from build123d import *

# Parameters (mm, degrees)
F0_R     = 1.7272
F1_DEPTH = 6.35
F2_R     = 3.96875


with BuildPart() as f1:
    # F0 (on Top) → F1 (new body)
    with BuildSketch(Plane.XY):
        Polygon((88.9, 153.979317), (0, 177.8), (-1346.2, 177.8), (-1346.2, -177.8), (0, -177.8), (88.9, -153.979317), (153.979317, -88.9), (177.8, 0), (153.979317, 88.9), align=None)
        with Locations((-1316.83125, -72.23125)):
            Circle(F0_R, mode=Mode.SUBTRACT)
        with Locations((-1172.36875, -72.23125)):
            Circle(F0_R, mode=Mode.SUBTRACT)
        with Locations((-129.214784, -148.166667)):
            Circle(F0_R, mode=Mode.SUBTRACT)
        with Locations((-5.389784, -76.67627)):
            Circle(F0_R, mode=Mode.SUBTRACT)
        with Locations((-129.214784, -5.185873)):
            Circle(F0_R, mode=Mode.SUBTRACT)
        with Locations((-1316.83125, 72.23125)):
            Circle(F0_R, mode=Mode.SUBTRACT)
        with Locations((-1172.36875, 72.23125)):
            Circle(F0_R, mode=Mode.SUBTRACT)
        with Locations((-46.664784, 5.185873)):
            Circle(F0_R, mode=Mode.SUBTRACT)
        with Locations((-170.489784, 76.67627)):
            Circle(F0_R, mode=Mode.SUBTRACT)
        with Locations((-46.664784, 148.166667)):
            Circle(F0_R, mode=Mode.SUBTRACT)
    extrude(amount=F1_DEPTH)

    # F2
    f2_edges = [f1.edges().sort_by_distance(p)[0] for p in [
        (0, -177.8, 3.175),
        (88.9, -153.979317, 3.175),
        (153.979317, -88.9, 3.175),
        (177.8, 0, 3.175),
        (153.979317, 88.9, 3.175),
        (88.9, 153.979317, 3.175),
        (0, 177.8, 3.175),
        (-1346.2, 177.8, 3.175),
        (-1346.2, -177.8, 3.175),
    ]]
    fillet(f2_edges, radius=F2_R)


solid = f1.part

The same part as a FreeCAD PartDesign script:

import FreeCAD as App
import Part
import Sketcher

V = App.Vector
Q = App.Units.Quantity


def edges_at(feature, points):
    """Names of the edges that pass closest to the given points."""
    edges = feature.Shape.Edges
    near = lambda p: min(range(len(edges)), key=lambda i: edges[i].distToShape(Part.Vertex(*p))[0])
    return sorted({f"Edge{near(p) + 1}" for p in points})

doc = App.newDocument("Part")
params = doc.addObject("Spreadsheet::Sheet", "Params")
for row, (alias, value) in enumerate([
    ("sketch1_width", "53 in"),
    ("sketch1_height", "14 in"),
    ("sketch1_diameter", "0.136 in"),
    ("pad1_length", "0.25 in"),
    ("fillet_radius", "0.15625 in"),
], start=1):
    params.set(f"A{row}", alias)
    params.set(f"B{row}", "=" + value)
    params.setAlias(f"B{row}", alias)

body = doc.addObject("PartDesign::Body", "Body")

# Sketch on XY plane
sketch1 = body.newObject("Sketcher::SketchObject", "Sketch")
sketch1.AttachmentSupport = (doc.getObject("XY_Plane"), [""])
sketch1.MapMode = "FlatFace"
sketch1.addGeometry([
    Part.LineSegment(V(88.9, 154, 0), V(0, 177.8, 0)),  # 0
    Part.LineSegment(V(0, 177.8, 0), V(-1346.2, 177.8, 0)),  # 1
    Part.LineSegment(V(-1346.2, 177.8, 0), V(-1346.2, -177.8, 0)),  # 2
    Part.LineSegment(V(-1346.2, -177.8, 0), V(0, -177.8, 0)),  # 3
    Part.LineSegment(V(0, -177.8, 0), V(88.9, -154, 0)),  # 4
    Part.LineSegment(V(88.9, -154, 0), V(154, -88.9, 0)),  # 5
    Part.LineSegment(V(154, -88.9, 0), V(177.8, 0, 0)),  # 6
    Part.LineSegment(V(177.8, 0, 0), V(154, 88.9, 0)),  # 7
    Part.LineSegment(V(154, 88.9, 0), V(88.9, 154, 0)),  # 8
    Part.Circle(V(-1316.8, -72.2, 0), V(0, 0, 1), 1.7),  # 9
    Part.Circle(V(-1172.4, -72.2, 0), V(0, 0, 1), 1.7),  # 10
    Part.Circle(V(-129.2, -148.2, 0), V(0, 0, 1), 1.7),  # 11
    Part.Circle(V(-5.4, -76.7, 0), V(0, 0, 1), 1.7),  # 12
    Part.Circle(V(-129.2, -5.2, 0), V(0, 0, 1), 1.7),  # 13
    Part.Circle(V(-1316.8, 72.2, 0), V(0, 0, 1), 1.7),  # 14
    Part.Circle(V(-1172.4, 72.2, 0), V(0, 0, 1), 1.7),  # 15
    Part.Circle(V(-46.7, 5.2, 0), V(0, 0, 1), 1.7),  # 16
    Part.Circle(V(-170.5, 76.7, 0), V(0, 0, 1), 1.7),  # 17
    Part.Circle(V(-46.7, 148.2, 0), V(0, 0, 1), 1.7),  # 18
], False)
sketch1.addConstraint([
    Sketcher.Constraint("Coincident", 0, 2, 1, 1),
    Sketcher.Constraint("Coincident", 1, 2, 2, 1),
    Sketcher.Constraint("Coincident", 2, 2, 3, 1),
    Sketcher.Constraint("Coincident", 3, 2, 4, 1),
    Sketcher.Constraint("Coincident", 4, 2, 5, 1),
    Sketcher.Constraint("Coincident", 5, 2, 6, 1),
    Sketcher.Constraint("Coincident", 6, 2, 7, 1),
    Sketcher.Constraint("Coincident", 7, 2, 8, 1),
    Sketcher.Constraint("Coincident", 8, 2, 0, 1),
    Sketcher.Constraint("Horizontal", 1),
    Sketcher.Constraint("Vertical", 2),
    Sketcher.Constraint("Horizontal", 3),
    Sketcher.Constraint("Equal", 9, 10),
    Sketcher.Constraint("Equal", 10, 11),
    Sketcher.Constraint("Equal", 11, 12),
    Sketcher.Constraint("Equal", 12, 13),
    Sketcher.Constraint("Equal", 13, 14),
    Sketcher.Constraint("Equal", 14, 15),
    Sketcher.Constraint("Equal", 15, 16),
    Sketcher.Constraint("Equal", 16, 17),
    Sketcher.Constraint("Equal", 17, 18),
    Sketcher.Constraint("Symmetric", 0, 2, 3, 2, -1, 1),
    Sketcher.Constraint("Symmetric", 9, 3, 14, 3, -1),
    Sketcher.Constraint("Symmetric", 10, 3, 15, 3, -1),
    Sketcher.Constraint("Symmetric", 5, 2, 7, 2, -1),
    Sketcher.Constraint("Symmetric", 4, 2, 8, 2, -1),
    Sketcher.Constraint("PointOnObject", 0, 2, -2),
    Sketcher.Constraint("PointOnObject", 6, 2, -1),
    Sketcher.Constraint("Perpendicular", 0, 6),
    Sketcher.Constraint("Perpendicular", 5, 8),
    Sketcher.Constraint("Horizontal", 9, 3, 10, 3),
    Sketcher.Constraint("Vertical", 11, 3, 13, 3),
    Sketcher.Constraint("Vertical", 16, 3, 18, 3),
    Sketcher.Constraint("Equal", 4, 5),
    Sketcher.Constraint("Equal", 5, 6),
    Sketcher.Constraint("DistanceX", 1, 2, 1, 1, Q("53 in")),
    Sketcher.Constraint("DistanceY", 2, 2, 2, 1, Q("14 in")),
    Sketcher.Constraint("Diameter", 9, Q("0.136 in")),
    Sketcher.Constraint("Angle", 0, Q("165 deg")),
    Sketcher.Constraint("DistanceX", 17, 3, 12, 3, Q("6.5 in")),
    Sketcher.Constraint("DistanceX", 13, 3, 16, 3, Q("3.25 in")),
    Sketcher.Constraint("DistanceX", 9, 3, -1, 1, Q("51.84375 in")),
    Sketcher.Constraint("DistanceY", 9, 3, -1, 1, Q("2.84375 in")),
    Sketcher.Constraint("DistanceX", 10, 3, -1, 1, Q("46.15625 in")),
    Sketcher.Constraint("DistanceX", 11, 3, 12, 3, Q("4.875 in")),
    Sketcher.Constraint("DistanceX", 12, 3, 5, 2, 159.369101),
    Sketcher.Constraint("DistanceY", 12, 3, -1, 1, 76.67627),
    Sketcher.Constraint("DistanceY", -1, 1, 17, 3, 76.67627),
    Sketcher.Constraint("DistanceY", 11, 3, 16, 3, 153.35254),
    Sketcher.Constraint("DistanceY", 13, 3, 18, 3, 153.35254),
    Sketcher.Constraint("DistanceY", 4, 2, 16, 3, 159.16519),
    Sketcher.Constraint("DistanceY", 18, 3, 8, 2, 5.81265),
])
sketch1.setExpression("Constraints[35]", "Params.sketch1_width")
sketch1.setExpression("Constraints[36]", "Params.sketch1_height")
sketch1.setExpression("Constraints[37]", "Params.sketch1_diameter")
pad1 = body.newObject("PartDesign::Pad", "Pad")
pad1.Profile = sketch1
pad1.setExpression("Length", "Params.pad1_length")
doc.recompute()

fillet = body.newObject("PartDesign::Fillet", "Fillet")
fillet.Base = (pad1, edges_at(pad1, [
    (0, -177.8, 3.175),
    (88.9, -153.979, 3.175),
    (153.979, -88.9, 3.175),
    (177.8, 0, 3.175),
    (153.979, 88.9, 3.175),
    (88.9, 153.979, 3.175),
    (0, 177.8, 3.175),
    (-1346.2, 177.8, 3.175),
    (-1346.2, -177.8, 3.175),
]))
fillet.setExpression("Radius", "Params.fillet_radius")

doc.recompute()
